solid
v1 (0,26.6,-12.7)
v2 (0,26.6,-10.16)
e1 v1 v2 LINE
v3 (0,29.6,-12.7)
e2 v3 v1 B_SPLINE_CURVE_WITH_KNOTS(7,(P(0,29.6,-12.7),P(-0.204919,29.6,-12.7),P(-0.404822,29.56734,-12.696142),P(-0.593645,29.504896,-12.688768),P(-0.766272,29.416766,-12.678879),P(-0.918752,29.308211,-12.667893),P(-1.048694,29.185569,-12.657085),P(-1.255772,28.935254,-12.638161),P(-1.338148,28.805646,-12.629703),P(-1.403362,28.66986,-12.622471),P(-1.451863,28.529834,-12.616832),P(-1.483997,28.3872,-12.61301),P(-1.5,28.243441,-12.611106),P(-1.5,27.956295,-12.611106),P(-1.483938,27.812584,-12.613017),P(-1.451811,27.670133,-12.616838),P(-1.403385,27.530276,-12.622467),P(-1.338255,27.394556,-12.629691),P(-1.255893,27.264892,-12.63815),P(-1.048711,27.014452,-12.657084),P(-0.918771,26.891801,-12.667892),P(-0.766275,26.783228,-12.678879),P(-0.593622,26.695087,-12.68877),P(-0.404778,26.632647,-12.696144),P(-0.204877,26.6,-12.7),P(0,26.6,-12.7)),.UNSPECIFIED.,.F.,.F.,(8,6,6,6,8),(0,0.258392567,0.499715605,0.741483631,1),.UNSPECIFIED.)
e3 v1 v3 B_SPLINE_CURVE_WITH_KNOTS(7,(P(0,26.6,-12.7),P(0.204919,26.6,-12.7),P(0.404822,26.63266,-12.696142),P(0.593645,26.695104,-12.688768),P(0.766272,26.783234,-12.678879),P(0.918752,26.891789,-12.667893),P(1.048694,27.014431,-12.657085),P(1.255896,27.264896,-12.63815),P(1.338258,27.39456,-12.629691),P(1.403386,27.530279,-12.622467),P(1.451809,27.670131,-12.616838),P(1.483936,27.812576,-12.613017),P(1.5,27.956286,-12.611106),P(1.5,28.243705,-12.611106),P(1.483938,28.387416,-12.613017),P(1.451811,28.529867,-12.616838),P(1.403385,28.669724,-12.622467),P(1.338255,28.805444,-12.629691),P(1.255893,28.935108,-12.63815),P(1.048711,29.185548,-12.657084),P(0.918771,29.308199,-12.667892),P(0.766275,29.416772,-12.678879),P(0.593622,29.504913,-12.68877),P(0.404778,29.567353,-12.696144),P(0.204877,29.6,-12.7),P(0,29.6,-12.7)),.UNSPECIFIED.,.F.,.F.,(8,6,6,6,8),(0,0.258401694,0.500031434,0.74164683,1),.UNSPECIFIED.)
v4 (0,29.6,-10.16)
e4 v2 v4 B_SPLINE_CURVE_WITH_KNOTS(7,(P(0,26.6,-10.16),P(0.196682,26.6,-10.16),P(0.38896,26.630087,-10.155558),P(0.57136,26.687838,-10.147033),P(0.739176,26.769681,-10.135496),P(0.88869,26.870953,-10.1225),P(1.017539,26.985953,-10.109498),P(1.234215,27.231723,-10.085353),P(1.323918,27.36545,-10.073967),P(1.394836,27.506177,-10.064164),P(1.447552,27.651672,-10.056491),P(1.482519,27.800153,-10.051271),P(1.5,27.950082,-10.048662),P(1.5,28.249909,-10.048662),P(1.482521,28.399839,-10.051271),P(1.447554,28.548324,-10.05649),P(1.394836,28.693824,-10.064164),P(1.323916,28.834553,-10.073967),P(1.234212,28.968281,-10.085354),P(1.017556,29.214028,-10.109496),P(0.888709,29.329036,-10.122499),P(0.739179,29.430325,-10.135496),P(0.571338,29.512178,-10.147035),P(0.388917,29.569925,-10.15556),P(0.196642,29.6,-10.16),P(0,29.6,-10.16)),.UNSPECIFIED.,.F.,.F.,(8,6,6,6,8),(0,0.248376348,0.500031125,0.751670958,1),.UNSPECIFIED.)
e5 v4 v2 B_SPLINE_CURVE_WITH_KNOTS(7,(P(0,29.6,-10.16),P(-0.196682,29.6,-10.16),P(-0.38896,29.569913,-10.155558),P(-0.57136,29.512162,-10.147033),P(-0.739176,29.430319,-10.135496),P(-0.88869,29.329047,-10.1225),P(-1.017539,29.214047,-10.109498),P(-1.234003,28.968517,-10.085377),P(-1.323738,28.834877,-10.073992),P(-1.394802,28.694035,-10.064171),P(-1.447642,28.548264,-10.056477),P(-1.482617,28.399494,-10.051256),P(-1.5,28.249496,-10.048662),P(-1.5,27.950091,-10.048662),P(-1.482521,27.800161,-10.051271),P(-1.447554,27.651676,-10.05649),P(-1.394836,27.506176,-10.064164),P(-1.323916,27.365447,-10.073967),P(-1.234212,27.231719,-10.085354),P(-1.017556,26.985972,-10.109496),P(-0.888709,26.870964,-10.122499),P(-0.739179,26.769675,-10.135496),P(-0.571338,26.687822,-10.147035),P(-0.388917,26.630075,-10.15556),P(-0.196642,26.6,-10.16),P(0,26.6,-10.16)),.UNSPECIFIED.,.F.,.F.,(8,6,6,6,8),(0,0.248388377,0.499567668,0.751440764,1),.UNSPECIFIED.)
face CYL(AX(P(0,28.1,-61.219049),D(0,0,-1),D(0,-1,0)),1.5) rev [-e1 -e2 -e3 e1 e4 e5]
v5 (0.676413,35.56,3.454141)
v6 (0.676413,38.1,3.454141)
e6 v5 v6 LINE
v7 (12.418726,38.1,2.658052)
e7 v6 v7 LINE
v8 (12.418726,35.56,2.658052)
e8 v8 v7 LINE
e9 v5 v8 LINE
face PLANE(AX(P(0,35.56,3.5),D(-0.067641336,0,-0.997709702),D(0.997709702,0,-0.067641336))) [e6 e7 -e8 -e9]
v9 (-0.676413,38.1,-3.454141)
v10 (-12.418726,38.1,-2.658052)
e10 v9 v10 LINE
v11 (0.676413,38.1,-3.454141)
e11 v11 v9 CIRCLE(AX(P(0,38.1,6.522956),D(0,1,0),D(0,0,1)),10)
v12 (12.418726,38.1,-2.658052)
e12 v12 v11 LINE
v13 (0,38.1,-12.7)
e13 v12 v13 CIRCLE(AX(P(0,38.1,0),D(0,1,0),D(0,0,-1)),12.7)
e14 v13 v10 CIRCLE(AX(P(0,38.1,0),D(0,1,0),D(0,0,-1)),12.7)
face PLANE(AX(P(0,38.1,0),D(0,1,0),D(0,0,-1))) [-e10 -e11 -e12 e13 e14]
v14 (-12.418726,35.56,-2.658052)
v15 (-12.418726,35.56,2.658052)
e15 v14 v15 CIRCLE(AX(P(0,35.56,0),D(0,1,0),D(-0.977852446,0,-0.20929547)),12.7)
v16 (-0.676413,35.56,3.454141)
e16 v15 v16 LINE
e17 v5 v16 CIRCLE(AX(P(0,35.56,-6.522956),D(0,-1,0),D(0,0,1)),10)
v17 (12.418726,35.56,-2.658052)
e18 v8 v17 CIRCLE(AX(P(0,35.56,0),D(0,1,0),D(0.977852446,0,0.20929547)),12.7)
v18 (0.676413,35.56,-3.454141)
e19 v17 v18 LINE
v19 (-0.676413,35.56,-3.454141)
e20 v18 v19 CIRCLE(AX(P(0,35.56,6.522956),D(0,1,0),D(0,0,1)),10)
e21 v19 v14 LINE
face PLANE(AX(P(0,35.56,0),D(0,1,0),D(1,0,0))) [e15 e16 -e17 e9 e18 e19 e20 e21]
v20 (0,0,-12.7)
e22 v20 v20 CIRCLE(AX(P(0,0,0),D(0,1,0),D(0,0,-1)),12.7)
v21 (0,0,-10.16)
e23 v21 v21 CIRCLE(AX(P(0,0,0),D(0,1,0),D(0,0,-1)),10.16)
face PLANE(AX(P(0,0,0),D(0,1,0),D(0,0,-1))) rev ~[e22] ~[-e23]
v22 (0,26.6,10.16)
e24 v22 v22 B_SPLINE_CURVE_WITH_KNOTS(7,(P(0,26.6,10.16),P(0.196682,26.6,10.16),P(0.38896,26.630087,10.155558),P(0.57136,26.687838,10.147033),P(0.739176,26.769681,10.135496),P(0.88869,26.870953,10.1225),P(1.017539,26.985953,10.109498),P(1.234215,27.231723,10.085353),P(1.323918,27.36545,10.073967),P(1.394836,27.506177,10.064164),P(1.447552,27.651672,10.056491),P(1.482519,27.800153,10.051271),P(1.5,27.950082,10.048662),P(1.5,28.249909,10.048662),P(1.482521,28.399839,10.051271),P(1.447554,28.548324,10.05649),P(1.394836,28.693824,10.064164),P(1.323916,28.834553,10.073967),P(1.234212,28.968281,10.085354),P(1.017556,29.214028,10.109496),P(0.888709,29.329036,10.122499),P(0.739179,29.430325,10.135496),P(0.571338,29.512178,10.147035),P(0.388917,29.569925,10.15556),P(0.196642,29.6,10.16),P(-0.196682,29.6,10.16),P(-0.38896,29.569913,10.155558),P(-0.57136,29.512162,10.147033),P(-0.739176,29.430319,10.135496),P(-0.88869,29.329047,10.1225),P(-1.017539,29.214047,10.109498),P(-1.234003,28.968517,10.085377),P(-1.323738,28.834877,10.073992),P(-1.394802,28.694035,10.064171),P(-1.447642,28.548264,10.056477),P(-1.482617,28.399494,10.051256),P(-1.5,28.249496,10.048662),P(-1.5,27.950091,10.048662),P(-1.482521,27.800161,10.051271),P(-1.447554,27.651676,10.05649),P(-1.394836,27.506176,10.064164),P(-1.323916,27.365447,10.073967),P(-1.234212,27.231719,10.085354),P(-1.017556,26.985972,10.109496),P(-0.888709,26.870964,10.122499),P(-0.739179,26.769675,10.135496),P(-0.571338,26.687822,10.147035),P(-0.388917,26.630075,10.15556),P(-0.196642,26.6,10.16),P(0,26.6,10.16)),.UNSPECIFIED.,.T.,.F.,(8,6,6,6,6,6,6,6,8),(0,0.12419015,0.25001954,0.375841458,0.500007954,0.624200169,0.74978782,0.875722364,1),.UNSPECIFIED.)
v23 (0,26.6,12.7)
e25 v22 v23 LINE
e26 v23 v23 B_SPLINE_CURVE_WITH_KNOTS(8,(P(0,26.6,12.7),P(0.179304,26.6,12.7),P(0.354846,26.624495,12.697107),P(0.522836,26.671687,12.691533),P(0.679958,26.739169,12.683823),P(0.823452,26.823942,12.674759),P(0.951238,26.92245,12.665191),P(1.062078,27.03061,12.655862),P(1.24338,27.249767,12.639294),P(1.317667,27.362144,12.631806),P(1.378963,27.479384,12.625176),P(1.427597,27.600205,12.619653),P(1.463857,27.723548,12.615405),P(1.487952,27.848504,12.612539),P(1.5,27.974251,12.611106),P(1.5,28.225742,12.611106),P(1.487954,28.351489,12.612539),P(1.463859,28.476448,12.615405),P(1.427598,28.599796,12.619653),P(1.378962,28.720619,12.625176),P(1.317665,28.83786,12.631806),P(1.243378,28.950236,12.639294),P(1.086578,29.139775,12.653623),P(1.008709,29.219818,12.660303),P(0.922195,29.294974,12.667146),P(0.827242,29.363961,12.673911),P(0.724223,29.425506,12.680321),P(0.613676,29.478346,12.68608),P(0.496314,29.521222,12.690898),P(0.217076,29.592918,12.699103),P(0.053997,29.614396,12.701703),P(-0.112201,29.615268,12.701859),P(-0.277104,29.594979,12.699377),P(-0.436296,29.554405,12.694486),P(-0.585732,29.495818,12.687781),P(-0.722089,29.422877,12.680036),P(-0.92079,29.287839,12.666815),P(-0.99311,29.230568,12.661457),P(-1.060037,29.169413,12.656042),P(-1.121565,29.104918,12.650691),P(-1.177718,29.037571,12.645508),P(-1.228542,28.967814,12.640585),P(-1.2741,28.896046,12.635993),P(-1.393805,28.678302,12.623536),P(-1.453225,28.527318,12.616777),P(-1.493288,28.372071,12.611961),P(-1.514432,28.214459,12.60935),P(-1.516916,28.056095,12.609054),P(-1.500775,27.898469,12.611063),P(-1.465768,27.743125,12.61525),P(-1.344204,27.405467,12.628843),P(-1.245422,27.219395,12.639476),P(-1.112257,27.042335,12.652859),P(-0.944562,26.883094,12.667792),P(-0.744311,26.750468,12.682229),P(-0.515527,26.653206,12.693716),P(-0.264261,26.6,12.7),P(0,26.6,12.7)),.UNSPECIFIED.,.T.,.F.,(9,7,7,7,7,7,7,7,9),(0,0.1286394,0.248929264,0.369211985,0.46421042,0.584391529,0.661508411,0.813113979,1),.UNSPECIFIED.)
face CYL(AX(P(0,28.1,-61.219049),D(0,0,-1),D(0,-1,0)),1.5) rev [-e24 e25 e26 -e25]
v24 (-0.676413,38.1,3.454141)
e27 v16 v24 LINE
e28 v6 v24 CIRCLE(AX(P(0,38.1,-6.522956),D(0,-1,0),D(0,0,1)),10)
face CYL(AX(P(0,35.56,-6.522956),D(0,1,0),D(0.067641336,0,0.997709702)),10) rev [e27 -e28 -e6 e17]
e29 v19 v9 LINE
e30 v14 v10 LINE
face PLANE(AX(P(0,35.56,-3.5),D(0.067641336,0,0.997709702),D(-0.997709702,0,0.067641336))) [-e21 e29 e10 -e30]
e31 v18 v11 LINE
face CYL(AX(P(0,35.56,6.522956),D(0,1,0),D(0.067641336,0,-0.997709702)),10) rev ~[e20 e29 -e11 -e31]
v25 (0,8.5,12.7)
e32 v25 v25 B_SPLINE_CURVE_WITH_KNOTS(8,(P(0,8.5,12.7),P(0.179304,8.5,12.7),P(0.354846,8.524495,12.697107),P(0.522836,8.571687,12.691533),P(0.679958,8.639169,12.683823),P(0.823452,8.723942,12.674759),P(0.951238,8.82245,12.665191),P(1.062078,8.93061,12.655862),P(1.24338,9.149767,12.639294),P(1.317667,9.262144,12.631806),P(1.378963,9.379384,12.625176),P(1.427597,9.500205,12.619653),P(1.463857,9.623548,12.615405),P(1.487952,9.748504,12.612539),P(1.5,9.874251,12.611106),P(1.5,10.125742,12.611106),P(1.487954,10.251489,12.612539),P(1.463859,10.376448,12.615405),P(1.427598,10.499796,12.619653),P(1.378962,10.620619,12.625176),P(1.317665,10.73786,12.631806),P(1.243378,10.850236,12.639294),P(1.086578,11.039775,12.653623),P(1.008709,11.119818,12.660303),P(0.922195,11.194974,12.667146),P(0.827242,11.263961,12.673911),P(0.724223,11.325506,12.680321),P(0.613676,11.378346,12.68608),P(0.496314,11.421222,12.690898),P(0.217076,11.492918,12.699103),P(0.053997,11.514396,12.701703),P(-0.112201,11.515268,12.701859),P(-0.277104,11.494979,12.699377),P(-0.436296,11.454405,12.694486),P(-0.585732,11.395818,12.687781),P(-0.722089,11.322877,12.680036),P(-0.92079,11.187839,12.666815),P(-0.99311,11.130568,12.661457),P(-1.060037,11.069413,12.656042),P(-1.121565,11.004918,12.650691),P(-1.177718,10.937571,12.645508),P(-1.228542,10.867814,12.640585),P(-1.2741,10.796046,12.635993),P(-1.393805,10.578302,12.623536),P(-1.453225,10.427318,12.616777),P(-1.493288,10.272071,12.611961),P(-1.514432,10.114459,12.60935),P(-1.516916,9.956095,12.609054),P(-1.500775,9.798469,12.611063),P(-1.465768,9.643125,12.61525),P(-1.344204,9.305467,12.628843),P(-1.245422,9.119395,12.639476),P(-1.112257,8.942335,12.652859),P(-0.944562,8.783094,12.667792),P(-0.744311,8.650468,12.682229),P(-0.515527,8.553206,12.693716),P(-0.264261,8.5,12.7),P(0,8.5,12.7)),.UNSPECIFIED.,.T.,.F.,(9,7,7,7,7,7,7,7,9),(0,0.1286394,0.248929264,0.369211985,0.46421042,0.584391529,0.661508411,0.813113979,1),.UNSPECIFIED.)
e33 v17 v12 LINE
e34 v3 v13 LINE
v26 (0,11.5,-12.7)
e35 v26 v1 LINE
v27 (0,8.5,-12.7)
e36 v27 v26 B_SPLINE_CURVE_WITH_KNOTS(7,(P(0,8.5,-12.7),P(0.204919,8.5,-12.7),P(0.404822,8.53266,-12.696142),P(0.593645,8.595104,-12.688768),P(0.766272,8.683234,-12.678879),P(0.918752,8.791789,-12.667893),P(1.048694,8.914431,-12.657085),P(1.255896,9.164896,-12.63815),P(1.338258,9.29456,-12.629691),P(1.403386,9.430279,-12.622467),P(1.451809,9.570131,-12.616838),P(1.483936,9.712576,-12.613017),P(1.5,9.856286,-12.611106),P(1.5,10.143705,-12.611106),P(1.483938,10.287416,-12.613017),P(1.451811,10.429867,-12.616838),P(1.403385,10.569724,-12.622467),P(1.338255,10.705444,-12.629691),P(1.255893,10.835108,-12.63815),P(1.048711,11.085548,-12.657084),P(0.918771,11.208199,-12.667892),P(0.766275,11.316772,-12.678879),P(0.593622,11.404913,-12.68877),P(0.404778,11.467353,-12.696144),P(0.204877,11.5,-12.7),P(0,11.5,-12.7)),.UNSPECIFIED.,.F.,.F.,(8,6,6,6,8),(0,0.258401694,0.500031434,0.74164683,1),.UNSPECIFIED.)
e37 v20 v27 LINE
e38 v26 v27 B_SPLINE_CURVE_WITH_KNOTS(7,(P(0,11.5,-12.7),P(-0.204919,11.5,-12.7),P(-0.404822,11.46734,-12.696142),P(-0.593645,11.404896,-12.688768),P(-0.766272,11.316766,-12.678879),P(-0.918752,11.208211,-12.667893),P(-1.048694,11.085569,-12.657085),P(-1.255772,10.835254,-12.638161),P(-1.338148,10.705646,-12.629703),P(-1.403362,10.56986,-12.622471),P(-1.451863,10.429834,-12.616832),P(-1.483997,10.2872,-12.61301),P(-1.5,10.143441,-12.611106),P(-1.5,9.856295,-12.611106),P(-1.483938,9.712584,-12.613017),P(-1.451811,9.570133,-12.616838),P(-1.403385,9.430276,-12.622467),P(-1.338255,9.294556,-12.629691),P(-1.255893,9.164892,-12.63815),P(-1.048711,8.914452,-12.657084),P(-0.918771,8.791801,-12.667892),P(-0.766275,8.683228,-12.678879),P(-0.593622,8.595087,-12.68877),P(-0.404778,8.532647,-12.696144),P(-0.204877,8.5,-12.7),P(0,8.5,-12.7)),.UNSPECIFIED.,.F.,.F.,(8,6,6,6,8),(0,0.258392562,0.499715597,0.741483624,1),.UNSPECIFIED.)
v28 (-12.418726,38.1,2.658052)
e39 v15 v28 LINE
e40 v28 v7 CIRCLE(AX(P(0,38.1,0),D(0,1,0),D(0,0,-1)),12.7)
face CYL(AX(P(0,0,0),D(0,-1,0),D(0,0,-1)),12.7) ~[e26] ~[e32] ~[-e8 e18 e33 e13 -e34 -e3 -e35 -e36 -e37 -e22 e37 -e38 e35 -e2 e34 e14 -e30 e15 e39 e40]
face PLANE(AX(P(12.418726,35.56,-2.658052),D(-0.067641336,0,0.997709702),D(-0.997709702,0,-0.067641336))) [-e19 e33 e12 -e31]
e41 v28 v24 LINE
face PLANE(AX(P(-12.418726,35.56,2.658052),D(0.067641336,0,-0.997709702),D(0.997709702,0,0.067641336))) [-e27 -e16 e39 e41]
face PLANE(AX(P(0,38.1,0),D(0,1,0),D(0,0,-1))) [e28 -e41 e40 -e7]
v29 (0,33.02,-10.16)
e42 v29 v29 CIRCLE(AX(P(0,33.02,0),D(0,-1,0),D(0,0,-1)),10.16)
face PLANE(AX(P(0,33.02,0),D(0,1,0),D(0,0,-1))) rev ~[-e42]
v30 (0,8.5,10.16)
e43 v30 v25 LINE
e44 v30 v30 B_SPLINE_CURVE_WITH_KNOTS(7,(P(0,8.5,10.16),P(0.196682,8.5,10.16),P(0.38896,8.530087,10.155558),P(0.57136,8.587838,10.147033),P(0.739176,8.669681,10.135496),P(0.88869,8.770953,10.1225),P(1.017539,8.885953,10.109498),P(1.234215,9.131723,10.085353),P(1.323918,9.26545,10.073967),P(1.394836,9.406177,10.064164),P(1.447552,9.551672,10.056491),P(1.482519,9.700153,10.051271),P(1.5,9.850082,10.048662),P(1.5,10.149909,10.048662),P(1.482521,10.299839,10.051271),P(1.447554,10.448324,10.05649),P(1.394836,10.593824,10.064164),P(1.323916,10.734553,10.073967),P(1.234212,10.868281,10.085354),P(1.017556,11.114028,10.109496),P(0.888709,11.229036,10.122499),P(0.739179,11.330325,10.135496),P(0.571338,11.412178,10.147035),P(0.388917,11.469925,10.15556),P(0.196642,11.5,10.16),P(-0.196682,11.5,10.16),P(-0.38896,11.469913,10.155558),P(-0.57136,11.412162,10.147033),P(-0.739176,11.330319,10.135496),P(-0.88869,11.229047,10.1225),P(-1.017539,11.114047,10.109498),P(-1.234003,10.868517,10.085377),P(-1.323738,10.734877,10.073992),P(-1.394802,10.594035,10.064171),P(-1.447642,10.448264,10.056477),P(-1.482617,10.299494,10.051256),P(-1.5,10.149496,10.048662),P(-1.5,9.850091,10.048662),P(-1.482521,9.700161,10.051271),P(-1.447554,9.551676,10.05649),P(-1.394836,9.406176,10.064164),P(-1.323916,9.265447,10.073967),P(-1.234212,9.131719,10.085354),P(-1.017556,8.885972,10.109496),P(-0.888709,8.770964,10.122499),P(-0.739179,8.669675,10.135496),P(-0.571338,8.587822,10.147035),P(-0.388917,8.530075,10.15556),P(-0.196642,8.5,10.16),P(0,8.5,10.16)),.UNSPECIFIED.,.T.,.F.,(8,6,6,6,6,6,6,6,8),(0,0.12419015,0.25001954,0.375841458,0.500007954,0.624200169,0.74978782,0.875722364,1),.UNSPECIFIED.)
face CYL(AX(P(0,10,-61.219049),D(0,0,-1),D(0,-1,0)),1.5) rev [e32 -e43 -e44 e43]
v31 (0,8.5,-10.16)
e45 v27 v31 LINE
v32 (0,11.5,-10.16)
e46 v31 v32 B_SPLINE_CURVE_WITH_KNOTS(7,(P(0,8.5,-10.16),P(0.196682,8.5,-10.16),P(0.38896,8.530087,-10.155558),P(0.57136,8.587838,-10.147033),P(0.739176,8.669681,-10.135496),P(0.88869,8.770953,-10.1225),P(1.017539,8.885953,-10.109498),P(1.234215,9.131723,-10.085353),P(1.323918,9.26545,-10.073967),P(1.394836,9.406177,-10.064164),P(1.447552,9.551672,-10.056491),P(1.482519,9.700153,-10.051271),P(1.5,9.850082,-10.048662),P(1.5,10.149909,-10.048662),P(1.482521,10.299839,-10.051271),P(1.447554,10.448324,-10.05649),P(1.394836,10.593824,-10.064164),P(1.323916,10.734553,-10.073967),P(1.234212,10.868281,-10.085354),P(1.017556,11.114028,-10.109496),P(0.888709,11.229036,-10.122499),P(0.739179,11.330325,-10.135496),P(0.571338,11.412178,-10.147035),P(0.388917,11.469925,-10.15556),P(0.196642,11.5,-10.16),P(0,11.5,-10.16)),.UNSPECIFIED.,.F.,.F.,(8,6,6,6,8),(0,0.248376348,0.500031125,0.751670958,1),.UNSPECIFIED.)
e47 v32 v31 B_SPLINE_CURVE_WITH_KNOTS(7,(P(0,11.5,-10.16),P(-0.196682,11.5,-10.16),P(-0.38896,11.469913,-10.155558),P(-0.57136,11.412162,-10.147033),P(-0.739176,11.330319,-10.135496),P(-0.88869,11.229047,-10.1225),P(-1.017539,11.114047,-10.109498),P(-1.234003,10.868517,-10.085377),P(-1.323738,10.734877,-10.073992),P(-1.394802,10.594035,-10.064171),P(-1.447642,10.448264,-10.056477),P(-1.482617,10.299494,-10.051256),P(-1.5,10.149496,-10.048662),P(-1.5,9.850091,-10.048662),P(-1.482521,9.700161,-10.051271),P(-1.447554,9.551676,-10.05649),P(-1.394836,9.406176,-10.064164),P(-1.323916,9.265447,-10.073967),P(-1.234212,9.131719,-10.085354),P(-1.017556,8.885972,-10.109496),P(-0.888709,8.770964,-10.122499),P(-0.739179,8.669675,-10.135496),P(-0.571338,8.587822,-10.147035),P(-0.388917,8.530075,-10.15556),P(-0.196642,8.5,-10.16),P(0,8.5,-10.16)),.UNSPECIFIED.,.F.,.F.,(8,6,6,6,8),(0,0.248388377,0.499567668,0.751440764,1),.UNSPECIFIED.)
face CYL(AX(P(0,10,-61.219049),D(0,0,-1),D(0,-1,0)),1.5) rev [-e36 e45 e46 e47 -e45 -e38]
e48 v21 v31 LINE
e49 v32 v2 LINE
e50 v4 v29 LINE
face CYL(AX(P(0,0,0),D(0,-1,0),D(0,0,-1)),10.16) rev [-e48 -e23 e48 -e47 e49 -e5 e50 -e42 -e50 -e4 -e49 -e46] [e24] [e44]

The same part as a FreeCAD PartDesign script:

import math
import FreeCAD as App
import Part
import Sketcher
Q = App.Units.Quantity


def edges_at(feature, points):
    """Names of the edges that pass closest to the given points."""
    edges = feature.Shape.Edges
    near = lambda p: min(range(len(edges)), key=lambda i: edges[i].distToShape(Part.Vertex(*p))[0])
    return sorted({f"Edge{near(p) + 1}" for p in points})

doc = App.newDocument("Part")
body = doc.addObject("PartDesign::Body", "Body")

sketch1 = body.newObject("Sketcher::SketchObject", "Sketch")
sketch1.AttachmentSupport = (doc.getObject("XZ_Plane"), [""])
sketch1.MapMode = "FlatFace"
sketch1.addGeometry([
    Part.Circle(App.Vector(0, 0, 0), App.Vector(0, 0, 1), 13),
    Part.Circle(App.Vector(0, 0, 0), App.Vector(0, 0, 1), 10),
], False)
sketch1.addConstraint([
    Sketcher.Constraint("Coincident", 0, 3, -1, 1),
    Sketcher.Constraint("Coincident", 1, 3, -1, 1),
    Sketcher.Constraint("Diameter", 0, Q("1 in")),
    Sketcher.Constraint("Diameter", 1, Q("0.8 in")),
])
pad1 = body.newObject("PartDesign::Pad", "Pad")
pad1.Profile = sketch1
pad1.Length = Q("1.5 in")
pad1.Reversed = True

sketch2 = body.newObject("Sketcher::SketchObject", "Sketch001")
sketch2.AttachmentSupport = (doc.getObject("XZ_Plane"), [""])
sketch2.MapMode = "FlatFace"
sketch2.AttachmentOffset = App.Placement(App.Vector(0, 0, -1.3 * 25.4), App.Rotation())
sketch2.addGeometry(Part.Circle(App.Vector(0, 0, 0), App.Vector(0, 0, 1), 13), False)
sketch2.addConstraint([
    Sketcher.Constraint("Coincident", 0, 3, -1, 1),
    Sketcher.Constraint("Diameter", 0, Q("1 in")),
])
pad2 = body.newObject("PartDesign::Pad", "Pad001")
pad2.Profile = sketch2
pad2.Length = Q("0.2 in")
pad2.Reversed = True

sketch3 = body.newObject("Sketcher::SketchObject", "Sketch002")
sketch3.AttachmentSupport = (doc.getObject("XZ_Plane"), [""])
sketch3.MapMode = "FlatFace"
sketch3.AttachmentOffset = App.Placement(App.Vector(0, 0, -1.4 * 25.4), App.Rotation())
sketch3.addGeometry([
    Part.LineSegment(App.Vector(0, -4, 0), App.Vector(-12, -3, 0)),
    Part.ArcOfCircle(Part.Circle(App.Vector(0, 0, 0), App.Vector(0, 0, 1), 13), math.radians(168), math.radians(192)),
    Part.LineSegment(App.Vector(-12, 3, 0), App.Vector(0, 4, 0)),
    Part.LineSegment(App.Vector(0, 4, 0), App.Vector(12, 3, 0)),
    Part.ArcOfCircle(Part.Circle(App.Vector(0, 0, 0), App.Vector(0, 0, 1), 13), math.radians(-12), math.radians(12)),
    Part.LineSegment(App.Vector(12, -3, 0), App.Vector(0, -4, 0)),
], False)
sketch3.addConstraint([
    Sketcher.Constraint("Coincident", 0, 2, 1, 2),
    Sketcher.Constraint("Coincident", 1, 1, 2, 1),
    Sketcher.Constraint("Coincident", 2, 2, 3, 1),
    Sketcher.Constraint("Coincident", 3, 2, 4, 2),
    Sketcher.Constraint("Coincident", 4, 1, 5, 1),
    Sketcher.Constraint("Coincident", 5, 2, 0, 1),
    Sketcher.Constraint("Coincident", 1, 3, -1, 1),
    Sketcher.Constraint("Coincident", 4, 3, -1, 1),
    Sketcher.Constraint("Equal", 1, 4),
    Sketcher.Constraint("Symmetric", 2, 2, 5, 2, -1, 1),
    Sketcher.Constraint("PointOnObject", 2, 2, -2),
    Sketcher.Constraint("Parallel", 0, 3),
    Sketcher.Constraint("Parallel", 2, 5),
    Sketcher.Constraint("Horizontal", 1, 1, 3, 2),
    Sketcher.Constraint("Radius", 1, Q("0.5 in")),
    Sketcher.Constraint("DistanceY", -1, 1, 2, 2, Q("3.5 mm")),
    Sketcher.Constraint("Distance", 0, Q("12.447234 mm")),
])
pocket1 = body.newObject("PartDesign::Pocket", "Pocket")
pocket1.Profile = sketch3
pocket1.Length = Q("0.1 in")
doc.recompute()

fillet = body.newObject("PartDesign::Fillet", "Fillet")
fillet.Base = (pocket1, edges_at(pocket1, [(0, 36.83, 3.5), (0, 36.83, -3.5)]))
fillet.Radius = 10

sketch4 = body.newObject("Sketcher::SketchObject", "Sketch003")
sketch4.AttachmentSupport = (doc.getObject("XY_Plane"), [""])
sketch4.MapMode = "FlatFace"
sketch4.AttachmentOffset = App.Placement(App.Vector(0, 0, -0.5 * 25.4), App.Rotation())
sketch4.addGeometry([
    Part.Circle(App.Vector(0, 28.1, 0), App.Vector(0, 0, 1), 1.5),
    Part.Circle(App.Vector(0, 10, 0), App.Vector(0, 0, 1), 1.5),
], False)
sketch4.addConstraint([
    Sketcher.Constraint("Equal", 0, 1),
    Sketcher.Constraint("PointOnObject", 0, 3, -2),
    Sketcher.Constraint("PointOnObject", 1, 3, -2),
    Sketcher.Constraint("Diameter", 0, Q("3 mm")),
    Sketcher.Constraint("DistanceY", -1, 1, 0, 3, Q("28.1 mm")),
    Sketcher.Constraint("DistanceY", -1, 1, 1, 3, Q("10 mm")),
])
pocket2 = body.newObject("PartDesign::Pocket", "Pocket001")
pocket2.Profile = sketch4
pocket2.Type = "ThroughAll"
pocket2.Midplane = True

doc.recompute()
